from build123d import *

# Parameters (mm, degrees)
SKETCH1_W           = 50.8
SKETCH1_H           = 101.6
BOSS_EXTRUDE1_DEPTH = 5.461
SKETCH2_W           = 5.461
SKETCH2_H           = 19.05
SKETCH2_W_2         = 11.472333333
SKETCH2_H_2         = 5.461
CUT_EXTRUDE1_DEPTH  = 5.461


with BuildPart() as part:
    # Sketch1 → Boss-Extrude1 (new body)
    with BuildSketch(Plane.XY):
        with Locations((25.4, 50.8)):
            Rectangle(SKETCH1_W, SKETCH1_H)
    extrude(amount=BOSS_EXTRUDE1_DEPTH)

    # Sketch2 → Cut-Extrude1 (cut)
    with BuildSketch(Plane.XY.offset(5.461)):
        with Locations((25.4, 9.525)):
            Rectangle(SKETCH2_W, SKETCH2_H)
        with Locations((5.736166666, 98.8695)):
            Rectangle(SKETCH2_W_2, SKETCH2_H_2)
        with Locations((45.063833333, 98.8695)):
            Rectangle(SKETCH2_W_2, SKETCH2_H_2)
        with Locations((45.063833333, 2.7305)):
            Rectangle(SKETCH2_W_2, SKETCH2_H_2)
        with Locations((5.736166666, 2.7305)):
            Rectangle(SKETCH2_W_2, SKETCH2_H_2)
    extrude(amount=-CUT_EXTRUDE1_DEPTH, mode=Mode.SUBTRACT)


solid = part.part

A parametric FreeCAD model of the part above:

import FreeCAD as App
import Part
import Sketcher
Q = App.Units.Quantity


def add_polygon(sketch, points):
    """Adds a closed chain of lines whose ends are joined by coincident constraints."""
    first, n = sketch.GeometryCount, len(points)
    for a, b in zip(points, points[1:] + points[:1]):
        sketch.addGeometry(Part.LineSegment(App.Vector(*a, 0), App.Vector(*b, 0)), False)
    for i in range(n):
        sketch.addConstraint(Sketcher.Constraint("Coincident", first + i, 2, first + (i + 1) % n, 1))

doc = App.newDocument("Part")
body = doc.addObject("PartDesign::Body", "Body")

# Sketch on XY plane
sketch1 = body.newObject("Sketcher::SketchObject", "Sketch")
sketch1.AttachmentSupport = (doc.getObject("XY_Plane"), [""])
sketch1.MapMode = "FlatFace"
add_polygon(sketch1, [(0, 102), (0, 0), (51, 0), (51, 102)])  # lines 0-3
sketch1.addConstraint([
    Sketcher.Constraint("Vertical", 0),
    Sketcher.Constraint("Horizontal", 1),
    Sketcher.Constraint("Vertical", 2),
    Sketcher.Constraint("Horizontal", 3),
    Sketcher.Constraint("Coincident", 0, 2, -1, 1),
    Sketcher.Constraint("DistanceX", 1, 1, 1, 2, Q("2 in")),
    Sketcher.Constraint("DistanceY", 0, 2, 0, 1, Q("4 in")),
])
pad1 = body.newObject("PartDesign::Pad", "Pad")
pad1.Profile = sketch1
pad1.Length = Q("0.215 in")

# Sketch on XY plane
sketch2 = body.newObject("Sketcher::SketchObject", "Sketch001")
sketch2.AttachmentSupport = (doc.getObject("XY_Plane"), [""])
sketch2.MapMode = "FlatFace"
sketch2.AttachmentOffset = App.Placement(App.Vector(0, 0, 0.215 * 25.4), App.Rotation())
add_polygon(sketch2, [(23, 19), (23, 0), (28, 0), (28, 19)])  # lines 0-3
add_polygon(sketch2, [(0, 102), (0, 96), (11, 96), (11, 102)])  # lines 4-7
add_polygon(sketch2, [(39, 102), (39, 96), (51, 96), (51, 102)])  # lines 8-11
add_polygon(sketch2, [(39, 5), (39, 0), (51, 0), (51, 5)])  # lines 12-15
add_polygon(sketch2, [(0, 5), (0, 0), (11, 0), (11, 5)])  # lines 16-19
sketch2.addConstraint([
    Sketcher.Constraint("Vertical", 0),
    Sketcher.Constraint("Horizontal", 1),
    Sketcher.Constraint("Vertical", 2),
    Sketcher.Constraint("Horizontal", 3),
    Sketcher.Constraint("Vertical", 4),
    Sketcher.Constraint("Horizontal", 5),
    Sketcher.Constraint("Vertical", 6),
    Sketcher.Constraint("Horizontal", 7),
    Sketcher.Constraint("Vertical", 8),
    Sketcher.Constraint("Horizontal", 9),
    Sketcher.Constraint("Vertical", 10),
    Sketcher.Constraint("Horizontal", 11),
    Sketcher.Constraint("Vertical", 12),
    Sketcher.Constraint("Horizontal", 13),
    Sketcher.Constraint("Vertical", 14),
    Sketcher.Constraint("Horizontal", 15),
    Sketcher.Constraint("Vertical", 16),
    Sketcher.Constraint("Horizontal", 17),
    Sketcher.Constraint("Vertical", 18),
    Sketcher.Constraint("Horizontal", 19),
    Sketcher.Constraint("Coincident", 16, 2, -1, 1),
    Sketcher.Constraint("PointOnObject", 0, 2, -1),
    Sketcher.Constraint("PointOnObject", 4, 2, -2),
    Sketcher.Constraint("PointOnObject", 12, 2, -1),
    Sketcher.Constraint("Horizontal", 5, 2, 8, 2),
    Sketcher.Constraint("Horizontal", 7, 2, 10, 2),
    Sketcher.Constraint("Horizontal", 15, 2, 18, 2),
    Sketcher.Constraint("Vertical", 11, 2, 12, 2),
    Sketcher.Constraint("Vertical", 10, 2, 13, 2),
    Sketcher.Constraint("Vertical", 6, 2, 17, 2),
    Sketcher.Constraint("Equal", 7, 9),
    Sketcher.Constraint("Equal", 3, 4),
    Sketcher.Constraint("Equal", 10, 12),
    Sketcher.Constraint("DistanceY", -1, 1, 6, 2, Q("4 in")),
    Sketcher.Constraint("DistanceX", -1, 1, 9, 2, Q("2 in")),
    Sketcher.Constraint("DistanceY", 0, 2, 0, 1, Q("0.75 in")),
    Sketcher.Constraint("DistanceX", 1, 1, 1, 2, Q("0.215 in")),
    Sketcher.Constraint("DistanceX", -1, 1, 0, 2, Q("0.8925 in")),
    Sketcher.Constraint("DistanceX", 5, 1, 5, 2, Q("11.472333 mm")),
])
pocket1 = body.newObject("PartDesign::Pocket", "Pocket")
pocket1.Profile = sketch2
pocket1.Length = Q("0.215 in")

doc.recompute()
